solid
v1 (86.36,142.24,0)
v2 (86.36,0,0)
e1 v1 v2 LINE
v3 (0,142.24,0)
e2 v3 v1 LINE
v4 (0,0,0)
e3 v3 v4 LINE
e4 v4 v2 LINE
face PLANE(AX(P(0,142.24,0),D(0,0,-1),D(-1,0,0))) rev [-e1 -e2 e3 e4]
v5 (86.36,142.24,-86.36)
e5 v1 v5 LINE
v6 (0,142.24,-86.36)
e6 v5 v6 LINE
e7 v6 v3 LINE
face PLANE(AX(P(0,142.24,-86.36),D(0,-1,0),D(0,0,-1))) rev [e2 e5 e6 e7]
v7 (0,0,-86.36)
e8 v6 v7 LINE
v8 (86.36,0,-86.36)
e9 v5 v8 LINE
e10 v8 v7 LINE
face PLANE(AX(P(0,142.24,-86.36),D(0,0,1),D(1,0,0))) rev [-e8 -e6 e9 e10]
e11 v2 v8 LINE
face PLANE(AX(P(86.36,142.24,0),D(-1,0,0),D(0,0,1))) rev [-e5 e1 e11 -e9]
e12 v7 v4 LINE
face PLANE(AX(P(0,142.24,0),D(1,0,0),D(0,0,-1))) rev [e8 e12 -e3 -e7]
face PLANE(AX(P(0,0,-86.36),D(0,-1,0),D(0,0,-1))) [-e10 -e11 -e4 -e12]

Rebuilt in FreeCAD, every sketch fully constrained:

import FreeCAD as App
import Part
import Sketcher
from FreeCAD import Vector
Q = App.Units.Quantity


def add_polygon(sketch, points):
    """Adds a closed chain of lines whose ends are joined by coincident constraints."""
    first, n = sketch.GeometryCount, len(points)
    for a, b in zip(points, points[1:] + points[:1]):
        sketch.addGeometry(Part.LineSegment(App.Vector(*a, 0), App.Vector(*b, 0)), False)
    for i in range(n):
        sketch.addConstraint(Sketcher.Constraint("Coincident", first + i, 2, first + (i + 1) % n, 1))

doc = App.newDocument("Part")
params = doc.addObject("Spreadsheet::Sheet", "Params")
for row, (alias, value) in enumerate([
    ("sketch1_width", "3.4 in"),
    ("pad1_length", "5.6 in"),
], start=1):
    params.set(f"A{row}", alias)
    params.set(f"B{row}", "=" + value)
    params.setAlias(f"B{row}", alias)

body = doc.addObject("PartDesign::Body", "Body")

sketch1 = body.newObject("Sketcher::SketchObject", "Sketch")
sketch1.AttachmentSupport = (doc.getObject("XZ_Plane"), [""])
sketch1.MapMode = "FlatFace"
add_polygon(sketch1, [(0, -86), (0, 0), (86, 0), (86, -86)])
sketch1.addConstraint([
    Sketcher.Constraint("Vertical", 0),
    Sketcher.Constraint("Horizontal", 1),
    Sketcher.Constraint("Vertical", 2),
    Sketcher.Constraint("Horizontal", 3),
    Sketcher.Constraint("Coincident", 0, 2, -1, 1),
    Sketcher.Constraint("Equal", 3, 0),
    Sketcher.Constraint("DistanceX", 1, 1, 1, 2, Q("3.4 in")),
])
sketch1.setExpression("Constraints[10]", "Params.sketch1_width")
pad1 = body.newObject("PartDesign::Pad", "Pad")
pad1.Profile = sketch1
pad1.setExpression("Length", "Params.pad1_length")
pad1.Reversed = True

doc.recompute()
